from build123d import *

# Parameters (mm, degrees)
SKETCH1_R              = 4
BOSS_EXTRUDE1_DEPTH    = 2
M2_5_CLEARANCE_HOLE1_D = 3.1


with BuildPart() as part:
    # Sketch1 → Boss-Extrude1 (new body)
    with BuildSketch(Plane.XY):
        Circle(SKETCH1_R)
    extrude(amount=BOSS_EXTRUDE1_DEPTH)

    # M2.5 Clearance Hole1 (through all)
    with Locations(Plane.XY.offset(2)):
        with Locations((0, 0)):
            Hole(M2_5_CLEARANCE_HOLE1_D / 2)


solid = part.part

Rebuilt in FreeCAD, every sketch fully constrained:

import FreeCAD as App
import Part
import Sketcher

V = App.Vector
Q = App.Units.Quantity

doc = App.newDocument("Part")
body = doc.addObject("PartDesign::Body", "Body")

# Sketch on XY plane
sketch1 = body.newObject("Sketcher::SketchObject", "Sketch")
sketch1.AttachmentSupport = (doc.getObject("XY_Plane"), [""])
sketch1.MapMode = "FlatFace"
sketch1.addGeometry(Part.Circle(V(0, 0, 0), V(0, 0, 1), 4), False)
sketch1.addConstraint(Sketcher.Constraint("Coincident", 0, 3, -1, 1))
sketch1.addConstraint(Sketcher.Constraint("Diameter", 0, Q("8 mm")))
pad1 = body.newObject("PartDesign::Pad", "Pad")
pad1.Profile = sketch1
pad1.Length = 2

# Sketch on XY plane
sketch2 = body.newObject("Sketcher::SketchObject", "Sketch001")
sketch2.AttachmentSupport = (doc.getObject("XY_Plane"), [""])
sketch2.MapMode = "FlatFace"
sketch2.AttachmentOffset = App.Placement(V(0, 0, 2), App.Rotation())
sketch2.addGeometry(Part.Circle(V(0, 0, 0), V(0, 0, 1), 1.6), False)
sketch2.addConstraint(Sketcher.Constraint("Coincident", 0, 3, -1, 1))
sketch2.addConstraint(Sketcher.Constraint("Diameter", 0, Q("3.1 mm")))
doc.recompute()
hole = body.newObject("PartDesign::Hole", "Hole")
hole.Profile = sketch2
hole.ThreadType = "None"
hole.Diameter = 3.1
hole.DepthType = "ThroughAll"

doc.recompute()
